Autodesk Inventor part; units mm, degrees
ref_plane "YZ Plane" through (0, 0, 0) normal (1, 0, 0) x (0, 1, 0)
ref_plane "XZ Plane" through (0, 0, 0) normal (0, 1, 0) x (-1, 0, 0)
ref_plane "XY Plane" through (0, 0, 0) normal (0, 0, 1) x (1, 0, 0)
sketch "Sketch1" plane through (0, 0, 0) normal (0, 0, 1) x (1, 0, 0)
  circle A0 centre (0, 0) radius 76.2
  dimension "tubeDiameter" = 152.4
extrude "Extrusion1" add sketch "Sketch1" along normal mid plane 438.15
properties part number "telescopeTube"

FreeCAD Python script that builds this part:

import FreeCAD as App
import Part
import Sketcher
from FreeCAD import Vector
Q = App.Units.Quantity

doc = App.newDocument("Part")
body = doc.addObject("PartDesign::Body", "Body")

# Sketch on XY plane
sketch1 = body.newObject("Sketcher::SketchObject", "Sketch")
sketch1.AttachmentSupport = (doc.getObject("XY_Plane"), [""])
sketch1.MapMode = "FlatFace"
sketch1.addGeometry(Part.Circle(Vector(0, 0, 0), Vector(0, 0, 1), 76), False)
sketch1.addConstraint([
    Sketcher.Constraint("Coincident", 0, 3, -1, 1),
    Sketcher.Constraint("Diameter", 0, Q("6 in")),
])
pad1 = body.newObject("PartDesign::Pad", "Pad")
pad1.Profile = sketch1
pad1.Length = Q("17.25 in")
pad1.Midplane = True

doc.recompute()
